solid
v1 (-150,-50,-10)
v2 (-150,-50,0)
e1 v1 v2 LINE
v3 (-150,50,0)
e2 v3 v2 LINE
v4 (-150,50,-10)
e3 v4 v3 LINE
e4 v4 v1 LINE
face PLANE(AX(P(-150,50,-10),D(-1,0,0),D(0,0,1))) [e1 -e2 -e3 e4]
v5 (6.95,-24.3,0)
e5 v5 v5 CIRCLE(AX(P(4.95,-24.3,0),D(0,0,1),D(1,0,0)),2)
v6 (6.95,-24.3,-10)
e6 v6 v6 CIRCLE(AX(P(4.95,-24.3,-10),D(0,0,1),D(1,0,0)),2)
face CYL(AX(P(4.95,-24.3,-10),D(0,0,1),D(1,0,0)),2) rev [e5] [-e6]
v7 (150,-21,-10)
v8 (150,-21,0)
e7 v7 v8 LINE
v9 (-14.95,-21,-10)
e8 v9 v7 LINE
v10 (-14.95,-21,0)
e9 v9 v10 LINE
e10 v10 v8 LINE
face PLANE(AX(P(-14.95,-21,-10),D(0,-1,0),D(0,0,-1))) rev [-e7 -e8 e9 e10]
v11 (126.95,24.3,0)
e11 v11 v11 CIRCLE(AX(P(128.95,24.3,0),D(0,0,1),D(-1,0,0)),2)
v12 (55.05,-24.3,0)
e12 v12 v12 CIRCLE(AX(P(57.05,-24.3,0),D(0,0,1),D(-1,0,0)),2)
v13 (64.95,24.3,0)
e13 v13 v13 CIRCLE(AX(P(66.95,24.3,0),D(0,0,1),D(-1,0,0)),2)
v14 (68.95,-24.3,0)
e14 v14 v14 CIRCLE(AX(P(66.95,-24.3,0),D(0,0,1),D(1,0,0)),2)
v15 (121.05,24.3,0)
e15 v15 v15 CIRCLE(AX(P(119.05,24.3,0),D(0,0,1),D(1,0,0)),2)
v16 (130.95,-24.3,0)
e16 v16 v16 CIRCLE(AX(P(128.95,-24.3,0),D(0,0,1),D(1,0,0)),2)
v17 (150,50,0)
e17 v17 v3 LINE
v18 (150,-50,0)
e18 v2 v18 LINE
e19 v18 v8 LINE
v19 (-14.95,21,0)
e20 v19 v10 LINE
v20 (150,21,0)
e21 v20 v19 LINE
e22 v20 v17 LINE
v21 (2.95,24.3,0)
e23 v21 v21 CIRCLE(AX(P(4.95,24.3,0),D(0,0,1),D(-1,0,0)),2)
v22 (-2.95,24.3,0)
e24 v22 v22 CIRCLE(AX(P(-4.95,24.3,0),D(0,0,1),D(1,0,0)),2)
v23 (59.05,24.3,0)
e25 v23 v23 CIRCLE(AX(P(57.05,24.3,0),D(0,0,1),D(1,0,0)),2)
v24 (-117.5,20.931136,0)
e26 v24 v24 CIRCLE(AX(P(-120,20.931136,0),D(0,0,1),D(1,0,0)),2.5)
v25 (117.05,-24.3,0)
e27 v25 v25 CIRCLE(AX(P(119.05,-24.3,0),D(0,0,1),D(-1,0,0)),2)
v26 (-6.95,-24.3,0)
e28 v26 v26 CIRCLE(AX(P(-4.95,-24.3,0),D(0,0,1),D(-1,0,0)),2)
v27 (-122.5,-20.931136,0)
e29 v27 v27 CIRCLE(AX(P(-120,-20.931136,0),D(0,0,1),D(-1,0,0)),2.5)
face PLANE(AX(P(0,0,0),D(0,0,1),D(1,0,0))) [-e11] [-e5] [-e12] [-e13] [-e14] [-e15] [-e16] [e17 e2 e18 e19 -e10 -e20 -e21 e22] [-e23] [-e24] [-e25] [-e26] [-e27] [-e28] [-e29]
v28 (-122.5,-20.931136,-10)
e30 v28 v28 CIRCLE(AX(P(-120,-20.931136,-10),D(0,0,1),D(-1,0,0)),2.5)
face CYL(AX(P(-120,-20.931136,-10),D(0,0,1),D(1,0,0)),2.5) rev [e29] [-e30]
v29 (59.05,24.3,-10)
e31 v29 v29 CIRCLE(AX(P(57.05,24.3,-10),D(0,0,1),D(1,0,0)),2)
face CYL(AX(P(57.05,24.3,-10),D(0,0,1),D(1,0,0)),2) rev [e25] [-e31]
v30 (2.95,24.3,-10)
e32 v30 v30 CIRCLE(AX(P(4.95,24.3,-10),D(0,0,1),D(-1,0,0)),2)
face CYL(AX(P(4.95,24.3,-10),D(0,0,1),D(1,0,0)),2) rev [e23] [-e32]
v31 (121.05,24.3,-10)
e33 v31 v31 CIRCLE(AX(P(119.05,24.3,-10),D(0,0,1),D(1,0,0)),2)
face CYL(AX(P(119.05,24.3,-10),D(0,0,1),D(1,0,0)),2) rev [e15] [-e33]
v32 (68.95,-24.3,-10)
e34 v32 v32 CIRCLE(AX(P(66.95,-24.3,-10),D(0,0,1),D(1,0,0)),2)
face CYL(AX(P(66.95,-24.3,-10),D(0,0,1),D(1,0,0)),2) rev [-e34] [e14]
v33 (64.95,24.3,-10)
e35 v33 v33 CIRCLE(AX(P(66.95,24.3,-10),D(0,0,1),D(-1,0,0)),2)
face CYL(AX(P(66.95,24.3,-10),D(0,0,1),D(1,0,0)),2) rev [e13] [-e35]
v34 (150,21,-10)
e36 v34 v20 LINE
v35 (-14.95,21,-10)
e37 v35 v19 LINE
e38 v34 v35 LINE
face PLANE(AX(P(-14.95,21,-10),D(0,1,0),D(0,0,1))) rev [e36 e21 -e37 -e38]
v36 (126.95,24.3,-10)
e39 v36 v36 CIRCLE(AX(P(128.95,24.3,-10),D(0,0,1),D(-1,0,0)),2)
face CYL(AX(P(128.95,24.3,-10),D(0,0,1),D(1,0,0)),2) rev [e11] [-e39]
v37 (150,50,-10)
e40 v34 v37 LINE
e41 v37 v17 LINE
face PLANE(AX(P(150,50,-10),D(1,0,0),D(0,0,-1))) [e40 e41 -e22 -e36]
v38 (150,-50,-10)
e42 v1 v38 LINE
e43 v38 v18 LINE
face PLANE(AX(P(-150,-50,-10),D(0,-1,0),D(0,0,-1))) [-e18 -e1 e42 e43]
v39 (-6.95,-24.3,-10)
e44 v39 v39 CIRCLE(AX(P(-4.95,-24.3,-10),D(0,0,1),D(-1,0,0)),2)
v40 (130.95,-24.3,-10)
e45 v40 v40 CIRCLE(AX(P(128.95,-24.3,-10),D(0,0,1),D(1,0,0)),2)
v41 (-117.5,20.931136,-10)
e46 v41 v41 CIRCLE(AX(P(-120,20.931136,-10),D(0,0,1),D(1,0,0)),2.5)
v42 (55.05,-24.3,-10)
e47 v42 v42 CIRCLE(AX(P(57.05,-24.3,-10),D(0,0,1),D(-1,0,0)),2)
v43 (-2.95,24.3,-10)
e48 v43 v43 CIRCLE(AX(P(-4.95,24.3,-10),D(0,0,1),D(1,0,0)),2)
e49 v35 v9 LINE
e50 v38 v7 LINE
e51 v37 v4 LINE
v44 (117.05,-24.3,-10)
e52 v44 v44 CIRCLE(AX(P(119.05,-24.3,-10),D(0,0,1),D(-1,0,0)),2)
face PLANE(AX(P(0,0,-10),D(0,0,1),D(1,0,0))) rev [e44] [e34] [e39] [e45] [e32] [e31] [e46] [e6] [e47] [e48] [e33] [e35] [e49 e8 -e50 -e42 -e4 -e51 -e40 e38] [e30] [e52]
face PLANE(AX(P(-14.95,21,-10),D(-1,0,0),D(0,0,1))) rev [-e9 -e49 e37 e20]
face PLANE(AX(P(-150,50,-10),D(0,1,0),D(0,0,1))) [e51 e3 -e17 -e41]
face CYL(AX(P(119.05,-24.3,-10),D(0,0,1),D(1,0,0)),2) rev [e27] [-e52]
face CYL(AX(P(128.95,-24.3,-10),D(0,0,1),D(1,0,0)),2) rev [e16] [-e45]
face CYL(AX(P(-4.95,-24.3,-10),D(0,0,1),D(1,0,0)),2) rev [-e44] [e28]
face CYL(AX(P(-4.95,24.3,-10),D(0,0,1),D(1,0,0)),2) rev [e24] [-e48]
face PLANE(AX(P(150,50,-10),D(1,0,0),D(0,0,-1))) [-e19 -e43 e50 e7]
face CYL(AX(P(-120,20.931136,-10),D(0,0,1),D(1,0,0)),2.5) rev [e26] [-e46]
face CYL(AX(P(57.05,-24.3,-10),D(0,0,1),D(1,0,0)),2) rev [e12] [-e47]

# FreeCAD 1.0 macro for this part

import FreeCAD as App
import Part
import Sketcher

V = App.Vector

doc = App.newDocument("Part")
body = doc.addObject("PartDesign::Body", "Body")

sketch1 = body.newObject("Sketcher::SketchObject", "Sketch")
sketch1.AttachmentSupport = (doc.getObject("XY_Plane"), [""])
sketch1.MapMode = "FlatFace"
sketch1.addGeometry([
    Part.LineSegment(V(-150, 50, 0), V(-150, -50, 0)),
    Part.LineSegment(V(-150, -50, 0), V(150, -50, 0)),
    Part.LineSegment(V(150, -50, 0), V(150, 50, 0)),
    Part.LineSegment(V(150, 50, 0), V(-150, 50, 0)),
], False)
sketch1.addConstraint([
    Sketcher.Constraint("Coincident", 0, 2, 1, 1),
    Sketcher.Constraint("Coincident", 1, 2, 2, 1),
    Sketcher.Constraint("Coincident", 2, 2, 3, 1),
    Sketcher.Constraint("Coincident", 3, 2, 0, 1),
    Sketcher.Constraint("Vertical", 0),
    Sketcher.Constraint("Horizontal", 1),
    Sketcher.Constraint("Vertical", 2),
    Sketcher.Constraint("Horizontal", 3),
    Sketcher.Constraint("Symmetric", 0, 2, 2, 2, -1, 1),
    Sketcher.Constraint("DistanceX", 1, 1, 1, 2, 300.0),
    Sketcher.Constraint("DistanceY", 0, 2, 0, 1, 100.0),
])
pad1 = body.newObject("PartDesign::Pad", "Pad")
pad1.Profile = sketch1
pad1.Length = 10
pad1.Reversed = True

sketch2 = body.newObject("Sketcher::SketchObject", "Sketch001")
sketch2.AttachmentSupport = (doc.getObject("XY_Plane"), [""])
sketch2.MapMode = "FlatFace"
sketch2.addGeometry([
    Part.Circle(V(4.95, -24.3, 0), V(0, 0, 1), 2),
    Part.Circle(V(-4.95, -24.3, 0), V(0, 0, 1), 2),
    Part.Circle(V(-4.95, 24.3, 0), V(0, 0, 1), 2),
    Part.Circle(V(4.95, 24.3, 0), V(0, 0, 1), 2),
], False)
sketch2.addConstraint([
    Sketcher.Constraint("Equal", 0, 1),
    Sketcher.Constraint("Equal", 1, 2),
    Sketcher.Constraint("Equal", 2, 3),
    Sketcher.Constraint("Symmetric", 0, 3, 2, 3, -1, 1),
    Sketcher.Constraint("Symmetric", 1, 3, 3, 3, -1, 1),
    Sketcher.Constraint("Symmetric", 0, 3, 1, 3, -2),
    Sketcher.Constraint("Diameter", 0, 4.0),
    Sketcher.Constraint("DistanceY", 0, 3, -1, 1, 24.3),
    Sketcher.Constraint("DistanceX", 1, 3, 0, 3, 9.9),
])
pocket1 = body.newObject("PartDesign::Pocket", "Pocket")
pocket1.Profile = sketch2
pocket1.Type = "ThroughAll"
doc.recompute()

linearpattern = body.newObject("PartDesign::LinearPattern", "LinearPattern")
linearpattern.Originals = [pocket1]
linearpattern.Direction = (doc.getObject("X_Axis"), [""])
linearpattern.Mode = "offset"
linearpattern.Offset = 62
linearpattern.Occurrences = 4
body.Tip = linearpattern

sketch3 = body.newObject("Sketcher::SketchObject", "Sketch002")
sketch3.AttachmentSupport = (doc.getObject("XY_Plane"), [""])
sketch3.MapMode = "FlatFace"
sketch3.addGeometry([
    Part.LineSegment(V(-14.95, 21, 0), V(-14.95, -21, 0)),
    Part.LineSegment(V(-14.95, -21, 0), V(150, -21, 0)),
    Part.LineSegment(V(150, -21, 0), V(150, 21, 0)),
    Part.LineSegment(V(150, 21, 0), V(-14.95, 21, 0)),
], False)
sketch3.addConstraint([
    Sketcher.Constraint("Coincident", 0, 2, 1, 1),
    Sketcher.Constraint("Coincident", 1, 2, 2, 1),
    Sketcher.Constraint("Coincident", 2, 2, 3, 1),
    Sketcher.Constraint("Coincident", 3, 2, 0, 1),
    Sketcher.Constraint("Vertical", 0),
    Sketcher.Constraint("Horizontal", 1),
    Sketcher.Constraint("Vertical", 2),
    Sketcher.Constraint("Horizontal", 3),
    Sketcher.Constraint("DistanceY", 0, 2, 0, 1, 42.0),
    Sketcher.Constraint("DistanceY", 0, 2, -1, 1, 21.0),
    Sketcher.Constraint("DistanceX", -1, 1, 1, 2, 150.0),
    Sketcher.Constraint("DistanceX", 1, 1, 1, 2, 164.95),
])
pocket2 = body.newObject("PartDesign::Pocket", "Pocket001")
pocket2.Profile = sketch3
pocket2.Type = "ThroughAll"

sketch4 = body.newObject("Sketcher::SketchObject", "Sketch003")
sketch4.AttachmentSupport = (doc.getObject("XY_Plane"), [""])
sketch4.MapMode = "FlatFace"
sketch4.addGeometry([
    Part.Circle(V(-120, 20.931136, 0), V(0, 0, 1), 2.5),
    Part.Circle(V(-120, -20.931136, 0), V(0, 0, 1), 2.5),
], False)
sketch4.addConstraint([
    Sketcher.Constraint("Equal", 0, 1),
    Sketcher.Constraint("Symmetric", 0, 3, 1, 3, -1),
    Sketcher.Constraint("Diameter", 0, 5.0),
    Sketcher.Constraint("DistanceX", 0, 3, -1, 1, 120.0),
    Sketcher.Constraint("DistanceY", -1, 1, 0, 3, 20.931136),
])
pocket3 = body.newObject("PartDesign::Pocket", "Pocket002")
pocket3.Profile = sketch4
pocket3.Type = "ThroughAll"

doc.recompute()
